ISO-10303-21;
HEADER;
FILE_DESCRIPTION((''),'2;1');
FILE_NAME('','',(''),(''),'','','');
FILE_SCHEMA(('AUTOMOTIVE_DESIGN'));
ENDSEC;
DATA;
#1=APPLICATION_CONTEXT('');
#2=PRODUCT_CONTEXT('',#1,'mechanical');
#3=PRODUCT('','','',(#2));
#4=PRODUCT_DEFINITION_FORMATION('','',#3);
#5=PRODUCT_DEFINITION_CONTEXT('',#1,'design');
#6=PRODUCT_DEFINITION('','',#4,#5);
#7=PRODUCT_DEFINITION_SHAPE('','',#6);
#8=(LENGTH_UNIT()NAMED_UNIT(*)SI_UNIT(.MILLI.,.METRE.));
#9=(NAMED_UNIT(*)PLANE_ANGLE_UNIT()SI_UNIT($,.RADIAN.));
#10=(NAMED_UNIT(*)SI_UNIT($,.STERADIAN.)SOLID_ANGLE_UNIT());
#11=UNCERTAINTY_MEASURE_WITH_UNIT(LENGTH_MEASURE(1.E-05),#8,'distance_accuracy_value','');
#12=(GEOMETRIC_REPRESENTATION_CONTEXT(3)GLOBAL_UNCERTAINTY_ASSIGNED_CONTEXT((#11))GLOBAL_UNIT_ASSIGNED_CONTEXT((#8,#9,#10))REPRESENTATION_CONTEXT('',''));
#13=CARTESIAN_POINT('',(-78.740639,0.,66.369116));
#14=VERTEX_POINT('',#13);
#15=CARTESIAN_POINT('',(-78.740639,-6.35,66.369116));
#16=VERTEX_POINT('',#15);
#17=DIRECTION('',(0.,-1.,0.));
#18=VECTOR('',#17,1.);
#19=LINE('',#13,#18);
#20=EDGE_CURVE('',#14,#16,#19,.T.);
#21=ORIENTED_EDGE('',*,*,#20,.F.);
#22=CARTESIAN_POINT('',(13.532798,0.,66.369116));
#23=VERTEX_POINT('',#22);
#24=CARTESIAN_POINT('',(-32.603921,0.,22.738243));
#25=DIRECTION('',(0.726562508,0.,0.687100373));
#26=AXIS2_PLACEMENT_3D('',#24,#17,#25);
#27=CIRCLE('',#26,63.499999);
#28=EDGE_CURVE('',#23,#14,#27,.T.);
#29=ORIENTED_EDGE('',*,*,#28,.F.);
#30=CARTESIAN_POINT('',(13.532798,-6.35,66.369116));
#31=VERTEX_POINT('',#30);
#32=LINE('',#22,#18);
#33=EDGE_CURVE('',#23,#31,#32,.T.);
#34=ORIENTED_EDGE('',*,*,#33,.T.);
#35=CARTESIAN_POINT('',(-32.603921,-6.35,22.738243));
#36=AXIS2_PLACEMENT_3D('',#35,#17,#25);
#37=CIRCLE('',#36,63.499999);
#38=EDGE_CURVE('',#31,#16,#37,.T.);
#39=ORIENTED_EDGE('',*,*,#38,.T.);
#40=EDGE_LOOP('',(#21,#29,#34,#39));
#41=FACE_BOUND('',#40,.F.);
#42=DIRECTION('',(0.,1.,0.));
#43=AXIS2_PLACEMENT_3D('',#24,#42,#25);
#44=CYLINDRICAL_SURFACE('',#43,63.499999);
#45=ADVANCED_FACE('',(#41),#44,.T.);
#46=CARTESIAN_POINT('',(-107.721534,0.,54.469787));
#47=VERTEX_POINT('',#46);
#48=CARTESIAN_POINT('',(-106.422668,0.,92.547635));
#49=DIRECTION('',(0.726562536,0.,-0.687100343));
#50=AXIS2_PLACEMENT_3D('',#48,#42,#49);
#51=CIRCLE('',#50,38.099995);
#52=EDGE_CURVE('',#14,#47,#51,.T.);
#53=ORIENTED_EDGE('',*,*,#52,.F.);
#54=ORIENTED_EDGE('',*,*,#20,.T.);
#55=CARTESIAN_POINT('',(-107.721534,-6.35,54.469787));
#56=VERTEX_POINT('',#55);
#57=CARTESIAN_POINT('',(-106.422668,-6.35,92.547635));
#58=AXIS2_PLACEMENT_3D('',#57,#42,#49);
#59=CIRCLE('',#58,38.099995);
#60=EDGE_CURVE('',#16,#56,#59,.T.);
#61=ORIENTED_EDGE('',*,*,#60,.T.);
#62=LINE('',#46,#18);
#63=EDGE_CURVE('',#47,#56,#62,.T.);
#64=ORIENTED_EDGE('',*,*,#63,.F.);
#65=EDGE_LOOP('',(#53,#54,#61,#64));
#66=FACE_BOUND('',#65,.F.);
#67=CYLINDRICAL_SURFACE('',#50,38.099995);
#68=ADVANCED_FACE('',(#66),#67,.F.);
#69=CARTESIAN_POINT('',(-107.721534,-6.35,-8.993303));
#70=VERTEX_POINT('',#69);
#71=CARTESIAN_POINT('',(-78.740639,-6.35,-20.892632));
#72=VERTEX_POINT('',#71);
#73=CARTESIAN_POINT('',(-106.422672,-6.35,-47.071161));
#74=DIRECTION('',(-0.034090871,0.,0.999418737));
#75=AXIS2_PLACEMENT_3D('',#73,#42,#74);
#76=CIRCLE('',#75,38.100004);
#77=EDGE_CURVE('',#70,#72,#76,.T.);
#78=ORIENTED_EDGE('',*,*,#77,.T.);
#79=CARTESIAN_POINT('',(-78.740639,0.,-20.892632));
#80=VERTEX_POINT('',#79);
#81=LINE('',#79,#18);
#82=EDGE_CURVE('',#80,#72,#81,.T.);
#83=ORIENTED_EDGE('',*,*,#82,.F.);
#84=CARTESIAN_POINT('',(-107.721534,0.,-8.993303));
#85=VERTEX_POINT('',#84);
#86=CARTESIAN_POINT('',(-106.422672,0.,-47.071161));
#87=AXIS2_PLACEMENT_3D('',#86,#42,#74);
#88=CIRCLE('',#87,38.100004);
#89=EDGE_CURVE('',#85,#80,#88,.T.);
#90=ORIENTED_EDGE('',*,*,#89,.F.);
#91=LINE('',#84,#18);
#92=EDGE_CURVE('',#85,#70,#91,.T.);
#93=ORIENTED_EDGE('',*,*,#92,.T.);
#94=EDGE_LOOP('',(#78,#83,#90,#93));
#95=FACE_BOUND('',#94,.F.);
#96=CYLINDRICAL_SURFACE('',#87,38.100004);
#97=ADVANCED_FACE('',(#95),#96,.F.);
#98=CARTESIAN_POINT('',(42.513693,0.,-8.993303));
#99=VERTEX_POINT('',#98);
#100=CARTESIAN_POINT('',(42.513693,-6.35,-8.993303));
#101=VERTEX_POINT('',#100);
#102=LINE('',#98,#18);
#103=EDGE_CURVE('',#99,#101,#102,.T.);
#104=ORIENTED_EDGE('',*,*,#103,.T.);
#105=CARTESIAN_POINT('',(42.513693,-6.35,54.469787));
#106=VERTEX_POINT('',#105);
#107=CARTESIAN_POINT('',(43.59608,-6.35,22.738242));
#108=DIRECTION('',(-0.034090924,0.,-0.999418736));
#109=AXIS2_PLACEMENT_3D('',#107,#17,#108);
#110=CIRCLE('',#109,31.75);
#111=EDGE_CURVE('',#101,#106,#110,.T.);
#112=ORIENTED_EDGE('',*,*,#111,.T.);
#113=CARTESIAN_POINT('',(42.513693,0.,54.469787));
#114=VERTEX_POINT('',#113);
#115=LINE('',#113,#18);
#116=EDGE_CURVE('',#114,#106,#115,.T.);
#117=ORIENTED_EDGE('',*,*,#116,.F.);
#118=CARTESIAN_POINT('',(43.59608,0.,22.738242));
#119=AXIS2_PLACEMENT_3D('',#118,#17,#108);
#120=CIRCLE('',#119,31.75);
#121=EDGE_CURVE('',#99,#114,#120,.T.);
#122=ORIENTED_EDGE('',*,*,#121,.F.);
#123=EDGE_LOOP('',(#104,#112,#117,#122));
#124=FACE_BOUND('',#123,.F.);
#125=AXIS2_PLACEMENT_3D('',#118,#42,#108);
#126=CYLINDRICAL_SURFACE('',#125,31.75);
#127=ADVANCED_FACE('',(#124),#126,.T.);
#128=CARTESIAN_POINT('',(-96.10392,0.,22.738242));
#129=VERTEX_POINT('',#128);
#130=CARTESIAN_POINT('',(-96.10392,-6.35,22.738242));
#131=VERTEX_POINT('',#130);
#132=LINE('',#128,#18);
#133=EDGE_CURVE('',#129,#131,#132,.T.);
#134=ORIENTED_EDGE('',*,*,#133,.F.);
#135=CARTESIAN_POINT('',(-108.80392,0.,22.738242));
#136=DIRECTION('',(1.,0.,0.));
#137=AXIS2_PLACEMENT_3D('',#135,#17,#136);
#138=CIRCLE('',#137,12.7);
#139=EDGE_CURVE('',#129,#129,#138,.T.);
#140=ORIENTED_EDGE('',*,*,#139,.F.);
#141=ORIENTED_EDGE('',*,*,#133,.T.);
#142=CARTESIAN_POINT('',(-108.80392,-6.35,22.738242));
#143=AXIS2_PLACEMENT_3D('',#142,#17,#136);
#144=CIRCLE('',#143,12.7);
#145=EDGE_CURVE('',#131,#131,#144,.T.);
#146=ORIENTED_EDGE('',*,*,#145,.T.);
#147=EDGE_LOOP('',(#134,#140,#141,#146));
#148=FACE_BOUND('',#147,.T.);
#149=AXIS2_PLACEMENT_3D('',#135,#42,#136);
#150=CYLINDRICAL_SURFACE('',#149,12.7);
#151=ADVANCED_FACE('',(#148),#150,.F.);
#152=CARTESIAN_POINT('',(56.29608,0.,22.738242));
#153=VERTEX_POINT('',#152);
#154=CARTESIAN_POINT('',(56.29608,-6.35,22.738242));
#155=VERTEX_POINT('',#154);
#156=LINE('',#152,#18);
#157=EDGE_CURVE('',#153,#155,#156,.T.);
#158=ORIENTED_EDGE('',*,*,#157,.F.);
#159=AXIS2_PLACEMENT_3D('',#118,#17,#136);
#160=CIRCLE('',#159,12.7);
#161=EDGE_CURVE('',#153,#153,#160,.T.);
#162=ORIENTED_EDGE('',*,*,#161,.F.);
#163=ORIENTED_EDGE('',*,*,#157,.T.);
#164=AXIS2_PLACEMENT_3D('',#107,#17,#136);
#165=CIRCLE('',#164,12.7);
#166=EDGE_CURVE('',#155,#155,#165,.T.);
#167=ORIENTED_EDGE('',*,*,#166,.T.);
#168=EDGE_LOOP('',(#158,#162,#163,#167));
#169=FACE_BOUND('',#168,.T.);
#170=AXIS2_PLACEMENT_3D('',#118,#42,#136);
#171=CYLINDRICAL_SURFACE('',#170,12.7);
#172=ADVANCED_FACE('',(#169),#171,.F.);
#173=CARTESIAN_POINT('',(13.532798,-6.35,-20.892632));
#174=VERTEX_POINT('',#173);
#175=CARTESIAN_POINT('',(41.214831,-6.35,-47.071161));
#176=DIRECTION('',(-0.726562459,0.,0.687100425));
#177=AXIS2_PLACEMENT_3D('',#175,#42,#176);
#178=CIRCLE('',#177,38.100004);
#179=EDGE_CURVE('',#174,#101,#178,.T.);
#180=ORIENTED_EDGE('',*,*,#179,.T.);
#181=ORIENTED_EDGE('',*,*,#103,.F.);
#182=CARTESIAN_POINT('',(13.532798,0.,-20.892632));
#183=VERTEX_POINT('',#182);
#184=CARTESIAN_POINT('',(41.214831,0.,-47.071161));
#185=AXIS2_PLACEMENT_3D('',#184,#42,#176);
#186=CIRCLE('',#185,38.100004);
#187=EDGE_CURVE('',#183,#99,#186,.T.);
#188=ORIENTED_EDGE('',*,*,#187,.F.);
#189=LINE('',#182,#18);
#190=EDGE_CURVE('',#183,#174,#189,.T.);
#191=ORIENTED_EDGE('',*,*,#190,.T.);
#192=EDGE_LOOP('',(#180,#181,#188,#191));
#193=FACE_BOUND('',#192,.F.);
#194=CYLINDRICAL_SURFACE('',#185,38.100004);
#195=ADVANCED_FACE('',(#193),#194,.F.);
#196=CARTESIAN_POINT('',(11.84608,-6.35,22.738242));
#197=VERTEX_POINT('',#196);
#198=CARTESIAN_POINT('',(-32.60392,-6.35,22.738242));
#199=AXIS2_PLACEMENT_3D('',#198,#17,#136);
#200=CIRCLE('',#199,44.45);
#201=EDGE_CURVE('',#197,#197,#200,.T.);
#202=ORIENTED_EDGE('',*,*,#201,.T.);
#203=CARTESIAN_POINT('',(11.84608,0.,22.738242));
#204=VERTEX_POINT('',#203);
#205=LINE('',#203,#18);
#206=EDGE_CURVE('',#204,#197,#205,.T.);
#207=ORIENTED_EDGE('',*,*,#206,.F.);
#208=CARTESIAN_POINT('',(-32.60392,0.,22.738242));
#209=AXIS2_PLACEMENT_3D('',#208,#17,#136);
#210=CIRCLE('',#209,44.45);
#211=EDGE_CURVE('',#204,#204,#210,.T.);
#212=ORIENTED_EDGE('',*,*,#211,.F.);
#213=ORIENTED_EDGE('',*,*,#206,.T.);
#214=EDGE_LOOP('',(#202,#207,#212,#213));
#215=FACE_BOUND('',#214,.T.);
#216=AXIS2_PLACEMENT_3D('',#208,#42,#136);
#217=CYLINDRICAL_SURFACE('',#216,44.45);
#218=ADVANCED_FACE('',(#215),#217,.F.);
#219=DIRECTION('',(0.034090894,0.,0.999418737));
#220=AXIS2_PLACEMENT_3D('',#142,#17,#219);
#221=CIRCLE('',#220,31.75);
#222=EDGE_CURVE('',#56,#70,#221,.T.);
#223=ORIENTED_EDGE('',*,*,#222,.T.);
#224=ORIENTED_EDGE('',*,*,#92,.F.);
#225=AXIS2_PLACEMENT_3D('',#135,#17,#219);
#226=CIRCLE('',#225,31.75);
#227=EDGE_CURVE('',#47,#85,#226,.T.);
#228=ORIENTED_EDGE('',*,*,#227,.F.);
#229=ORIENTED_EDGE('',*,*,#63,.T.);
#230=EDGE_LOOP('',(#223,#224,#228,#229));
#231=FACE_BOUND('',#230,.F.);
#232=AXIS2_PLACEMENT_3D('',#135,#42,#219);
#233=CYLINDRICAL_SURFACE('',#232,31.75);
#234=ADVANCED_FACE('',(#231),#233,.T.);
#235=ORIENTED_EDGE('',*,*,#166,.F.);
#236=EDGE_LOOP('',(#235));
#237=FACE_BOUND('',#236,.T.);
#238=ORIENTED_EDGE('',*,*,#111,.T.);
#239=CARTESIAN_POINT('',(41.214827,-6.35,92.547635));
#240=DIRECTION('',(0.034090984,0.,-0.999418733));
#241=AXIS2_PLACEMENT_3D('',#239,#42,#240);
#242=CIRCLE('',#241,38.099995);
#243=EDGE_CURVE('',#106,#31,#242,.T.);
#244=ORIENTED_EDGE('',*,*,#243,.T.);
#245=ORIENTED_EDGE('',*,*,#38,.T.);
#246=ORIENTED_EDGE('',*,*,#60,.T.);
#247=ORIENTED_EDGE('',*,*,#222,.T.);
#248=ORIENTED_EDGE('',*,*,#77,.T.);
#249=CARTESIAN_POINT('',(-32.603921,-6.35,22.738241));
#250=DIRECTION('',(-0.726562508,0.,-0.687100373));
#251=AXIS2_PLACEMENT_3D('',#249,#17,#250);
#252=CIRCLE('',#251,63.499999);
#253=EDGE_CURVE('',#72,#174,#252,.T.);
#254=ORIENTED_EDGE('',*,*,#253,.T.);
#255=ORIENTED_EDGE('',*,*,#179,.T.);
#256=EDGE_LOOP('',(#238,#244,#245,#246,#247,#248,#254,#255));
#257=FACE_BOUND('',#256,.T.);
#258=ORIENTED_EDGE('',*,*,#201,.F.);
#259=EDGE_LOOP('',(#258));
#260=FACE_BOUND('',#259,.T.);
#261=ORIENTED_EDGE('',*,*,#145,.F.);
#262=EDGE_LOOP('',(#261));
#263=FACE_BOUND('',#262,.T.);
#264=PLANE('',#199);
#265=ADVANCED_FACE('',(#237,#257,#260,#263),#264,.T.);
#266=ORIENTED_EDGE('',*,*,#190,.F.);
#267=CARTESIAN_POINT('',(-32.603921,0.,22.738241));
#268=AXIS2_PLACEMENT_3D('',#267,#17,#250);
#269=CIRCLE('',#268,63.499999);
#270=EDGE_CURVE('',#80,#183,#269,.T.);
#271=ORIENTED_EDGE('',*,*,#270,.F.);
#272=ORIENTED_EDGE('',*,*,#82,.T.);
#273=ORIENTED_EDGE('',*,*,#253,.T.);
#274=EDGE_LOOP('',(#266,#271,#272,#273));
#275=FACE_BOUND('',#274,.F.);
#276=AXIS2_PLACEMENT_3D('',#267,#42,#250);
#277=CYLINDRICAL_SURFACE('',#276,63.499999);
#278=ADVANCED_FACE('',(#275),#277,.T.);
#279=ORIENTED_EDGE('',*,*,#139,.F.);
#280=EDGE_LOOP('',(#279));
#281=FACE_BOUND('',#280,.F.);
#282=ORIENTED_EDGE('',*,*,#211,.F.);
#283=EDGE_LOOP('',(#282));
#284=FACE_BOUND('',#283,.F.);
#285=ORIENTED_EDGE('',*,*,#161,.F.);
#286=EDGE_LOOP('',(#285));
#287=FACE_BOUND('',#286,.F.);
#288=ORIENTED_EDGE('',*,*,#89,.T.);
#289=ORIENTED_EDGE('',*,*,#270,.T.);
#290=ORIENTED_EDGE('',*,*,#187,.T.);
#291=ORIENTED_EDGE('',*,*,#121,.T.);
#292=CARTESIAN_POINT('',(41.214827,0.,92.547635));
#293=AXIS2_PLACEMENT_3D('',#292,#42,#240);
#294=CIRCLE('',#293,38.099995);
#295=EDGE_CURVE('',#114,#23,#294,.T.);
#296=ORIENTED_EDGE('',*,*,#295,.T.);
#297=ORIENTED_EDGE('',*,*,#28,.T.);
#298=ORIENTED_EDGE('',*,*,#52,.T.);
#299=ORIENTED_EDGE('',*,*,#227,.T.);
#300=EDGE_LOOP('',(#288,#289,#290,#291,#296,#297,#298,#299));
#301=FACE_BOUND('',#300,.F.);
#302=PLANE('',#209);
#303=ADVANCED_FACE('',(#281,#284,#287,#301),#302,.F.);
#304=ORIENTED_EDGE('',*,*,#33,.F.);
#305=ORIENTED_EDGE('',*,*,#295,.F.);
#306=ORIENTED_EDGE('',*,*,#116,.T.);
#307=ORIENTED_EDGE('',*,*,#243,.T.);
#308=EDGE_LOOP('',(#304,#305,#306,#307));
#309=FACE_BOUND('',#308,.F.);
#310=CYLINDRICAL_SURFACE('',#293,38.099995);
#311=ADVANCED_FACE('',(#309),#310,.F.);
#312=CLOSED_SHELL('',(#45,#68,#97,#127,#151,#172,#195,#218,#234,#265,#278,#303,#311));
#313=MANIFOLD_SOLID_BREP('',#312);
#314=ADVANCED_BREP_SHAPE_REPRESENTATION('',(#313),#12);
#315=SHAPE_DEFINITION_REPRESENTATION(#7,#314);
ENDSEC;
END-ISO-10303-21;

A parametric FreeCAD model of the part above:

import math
import FreeCAD as App
import Part
import Sketcher
from FreeCAD import Vector
Q = App.Units.Quantity

doc = App.newDocument("Part")
body = doc.addObject("PartDesign::Body", "Body")

# Sketch on XZ plane
sketch1 = doc.addObject("Sketcher::SketchObject", "Sketch")
body.addObject(sketch1)
sketch1.AttachmentSupport = (doc.XZ_Plane, [""])
sketch1.MapMode = "FlatFace"
sketch1.addGeometry(Part.ArcOfCircle(Part.Circle(Vector(-106, -47, 0), Vector(0, 0, 1), 38), math.radians(43), math.radians(92)), False)
sketch1.addGeometry(Part.ArcOfCircle(Part.Circle(Vector(-33, 23, 0), Vector(0, 0, 1), 63), math.radians(-137), math.radians(-43)), False)
sketch1.addGeometry(Part.ArcOfCircle(Part.Circle(Vector(41, -47, 0), Vector(0, 0, 1), 38), math.radians(88), math.radians(137)), False)
sketch1.addGeometry(Part.ArcOfCircle(Part.Circle(Vector(44, 23, 0), Vector(0, 0, 1), 32), math.radians(-92), math.radians(92)), False)
sketch1.addGeometry(Part.ArcOfCircle(Part.Circle(Vector(41, 93, 0), Vector(0, 0, 1), 38), math.radians(-137), math.radians(-88)), False)
sketch1.addGeometry(Part.ArcOfCircle(Part.Circle(Vector(-33, 23, 0), Vector(0, 0, 1), 63), math.radians(43), math.radians(137)), False)
sketch1.addGeometry(Part.ArcOfCircle(Part.Circle(Vector(-106, 93, 0), Vector(0, 0, 1), 38), math.radians(-92), math.radians(-43)), False)
sketch1.addGeometry(Part.ArcOfCircle(Part.Circle(Vector(-109, 23, 0), Vector(0, 0, 1), 32), math.radians(88), math.radians(272)), False)
sketch1.addGeometry(Part.Circle(Vector(-109, 23, 0), Vector(0, 0, 1), 13), False)
sketch1.addGeometry(Part.Circle(Vector(-33, 23, 0), Vector(0, 0, 1), 44), False)
sketch1.addGeometry(Part.Circle(Vector(44, 23, 0), Vector(0, 0, 1), 13), False)
sketch1.addConstraint(Sketcher.Constraint("Tangent", 0, 1, 1, 1))
sketch1.addConstraint(Sketcher.Constraint("Tangent", 1, 2, 2, 2))
sketch1.addConstraint(Sketcher.Constraint("Tangent", 2, 1, 3, 1))
sketch1.addConstraint(Sketcher.Constraint("Tangent", 3, 2, 4, 2))
sketch1.addConstraint(Sketcher.Constraint("Tangent", 4, 1, 5, 1))
sketch1.addConstraint(Sketcher.Constraint("Tangent", 5, 2, 6, 2))
sketch1.addConstraint(Sketcher.Constraint("Tangent", 6, 1, 7, 1))
sketch1.addConstraint(Sketcher.Constraint("Tangent", 7, 2, 0, 2))
sketch1.addConstraint(Sketcher.Constraint("Coincident", 5, 3, 1, 3))
sketch1.addConstraint(Sketcher.Constraint("Coincident", 8, 3, 7, 3))
sketch1.addConstraint(Sketcher.Constraint("Coincident", 9, 3, 1, 3))
sketch1.addConstraint(Sketcher.Constraint("Coincident", 10, 3, 3, 3))
sketch1.addConstraint(Sketcher.Constraint("Equal", 0, 2))
sketch1.addConstraint(Sketcher.Constraint("Equal", 1, 5))
sketch1.addConstraint(Sketcher.Constraint("Equal", 4, 6))
sketch1.addConstraint(Sketcher.Constraint("Equal", 3, 7))
sketch1.addConstraint(Sketcher.Constraint("Equal", 8, 10))
sketch1.addConstraint(Sketcher.Constraint("Horizontal", 0, 3, 2, 3))
sketch1.addConstraint(Sketcher.Constraint("Horizontal", 1, 3, 3, 3))
sketch1.addConstraint(Sketcher.Constraint("Horizontal", 4, 3, 6, 3))
sketch1.addConstraint(Sketcher.Constraint("Vertical", 2, 1, 3, 2))
sketch1.addConstraint(Sketcher.Constraint("Diameter", 8, Q("1 in")))
sketch1.addConstraint(Sketcher.Constraint("Diameter", 9, Q("3.5 in")))
sketch1.addConstraint(Sketcher.Constraint("Radius", 0, Q("1.5000002 in")))
sketch1.addConstraint(Sketcher.Constraint("Radius", 1, Q("2.5 in")))
sketch1.addConstraint(Sketcher.Constraint("Radius", 3, Q("1.25 in")))
sketch1.addConstraint(Sketcher.Constraint("DistanceX", 1, 3, 3, 3, Q("3 in")))
sketch1.addConstraint(Sketcher.Constraint("DistanceX", -1, 1, 4, 1, Q("13.532798 mm")))
sketch1.addConstraint(Sketcher.Constraint("DistanceY", 0, 3, -1, 1, Q("47.071161 mm")))
pad1 = doc.addObject("PartDesign::Pad", "Pad")
body.addObject(pad1)
pad1.Profile = sketch1
pad1.Length = Q("0.25 in")

doc.recompute()
